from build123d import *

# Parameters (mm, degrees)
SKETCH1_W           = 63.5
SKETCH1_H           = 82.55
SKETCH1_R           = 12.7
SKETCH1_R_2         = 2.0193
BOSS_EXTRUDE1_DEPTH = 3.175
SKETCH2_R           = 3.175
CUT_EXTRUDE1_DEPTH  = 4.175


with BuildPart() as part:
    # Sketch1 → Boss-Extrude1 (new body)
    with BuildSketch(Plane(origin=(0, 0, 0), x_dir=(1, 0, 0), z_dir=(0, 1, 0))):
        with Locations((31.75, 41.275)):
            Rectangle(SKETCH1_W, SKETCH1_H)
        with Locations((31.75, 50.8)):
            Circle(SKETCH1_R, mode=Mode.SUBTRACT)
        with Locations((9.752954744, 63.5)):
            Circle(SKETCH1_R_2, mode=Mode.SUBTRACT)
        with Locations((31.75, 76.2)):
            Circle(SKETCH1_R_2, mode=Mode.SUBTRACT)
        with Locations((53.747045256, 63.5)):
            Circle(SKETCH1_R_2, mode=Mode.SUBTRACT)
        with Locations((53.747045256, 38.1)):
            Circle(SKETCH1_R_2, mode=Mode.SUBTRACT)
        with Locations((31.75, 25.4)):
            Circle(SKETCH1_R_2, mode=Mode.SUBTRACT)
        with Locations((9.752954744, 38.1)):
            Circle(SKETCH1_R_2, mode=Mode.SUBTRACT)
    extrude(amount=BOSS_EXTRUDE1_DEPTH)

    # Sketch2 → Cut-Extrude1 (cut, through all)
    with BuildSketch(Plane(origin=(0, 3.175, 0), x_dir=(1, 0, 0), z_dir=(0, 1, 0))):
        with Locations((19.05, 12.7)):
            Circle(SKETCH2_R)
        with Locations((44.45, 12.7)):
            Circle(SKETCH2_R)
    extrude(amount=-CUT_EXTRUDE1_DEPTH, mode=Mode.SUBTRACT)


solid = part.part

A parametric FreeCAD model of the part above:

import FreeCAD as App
import Part
import Sketcher

V = App.Vector
Q = App.Units.Quantity

doc = App.newDocument("Part")
body = doc.addObject("PartDesign::Body", "Body")

# Sketch on XZ plane
sketch1 = doc.addObject("Sketcher::SketchObject", "Sketch")
body.addObject(sketch1)
sketch1.AttachmentSupport = (doc.XZ_Plane, [""])
sketch1.MapMode = "FlatFace"
sketch1.addGeometry(Part.LineSegment(V(0, -82.55, 0), V(0, 0, 0)), False)
sketch1.addGeometry(Part.LineSegment(V(0, 0, 0), V(63.5, 0, 0)), False)
sketch1.addGeometry(Part.LineSegment(V(63.5, 0, 0), V(63.5, -82.55, 0)), False)
sketch1.addGeometry(Part.LineSegment(V(63.5, -82.55, 0), V(0, -82.55, 0)), False)
sketch1.addGeometry(Part.Circle(V(9.752955, -38.1, 0), V(0, 0, 1), 2.0193), False)
sketch1.addGeometry(Part.Circle(V(31.75, -25.4, 0), V(0, 0, 1), 2.0193), False)
sketch1.addGeometry(Part.Circle(V(31.75, -50.8, 0), V(0, 0, 1), 12.7), False)
sketch1.addGeometry(Part.Circle(V(53.747045, -38.1, 0), V(0, 0, 1), 2.0193), False)
sketch1.addGeometry(Part.Circle(V(9.752955, -63.5, 0), V(0, 0, 1), 2.0193), False)
sketch1.addGeometry(Part.Circle(V(53.747045, -63.5, 0), V(0, 0, 1), 2.0193), False)
sketch1.addGeometry(Part.Circle(V(31.75, -76.2, 0), V(0, 0, 1), 2.0193), False)
sketch1.addConstraint(Sketcher.Constraint("Coincident", 0, 2, 1, 1))
sketch1.addConstraint(Sketcher.Constraint("Coincident", 1, 2, 2, 1))
sketch1.addConstraint(Sketcher.Constraint("Coincident", 2, 2, 3, 1))
sketch1.addConstraint(Sketcher.Constraint("Coincident", 3, 2, 0, 1))
sketch1.addConstraint(Sketcher.Constraint("Vertical", 0))
sketch1.addConstraint(Sketcher.Constraint("Horizontal", 1))
sketch1.addConstraint(Sketcher.Constraint("Vertical", 2))
sketch1.addConstraint(Sketcher.Constraint("Horizontal", 3))
sketch1.addConstraint(Sketcher.Constraint("Coincident", 0, 2, -1, 1))
sketch1.addConstraint(Sketcher.Constraint("Equal", 4, 5))
sketch1.addConstraint(Sketcher.Constraint("Equal", 5, 7))
sketch1.addConstraint(Sketcher.Constraint("Equal", 7, 8))
sketch1.addConstraint(Sketcher.Constraint("Equal", 8, 9))
sketch1.addConstraint(Sketcher.Constraint("Equal", 9, 10))
sketch1.addConstraint(Sketcher.Constraint("Horizontal", 4, 3, 7, 3))
sketch1.addConstraint(Sketcher.Constraint("Horizontal", 8, 3, 9, 3))
sketch1.addConstraint(Sketcher.Constraint("Vertical", 5, 3, 6, 3))
sketch1.addConstraint(Sketcher.Constraint("Vertical", 4, 3, 8, 3))
sketch1.addConstraint(Sketcher.Constraint("Vertical", 7, 3, 9, 3))
sketch1.addConstraint(Sketcher.Constraint("Vertical", 6, 3, 10, 3))
sketch1.addConstraint(Sketcher.Constraint("Diameter", 6, Q("1 in")))
sketch1.addConstraint(Sketcher.Constraint("Diameter", 4, Q("0.159 in")))
sketch1.addConstraint(Sketcher.Constraint("DistanceX", 1, 1, 1, 2, Q("2.5 in")))
sketch1.addConstraint(Sketcher.Constraint("DistanceY", 5, 3, -1, 1, Q("1 in")))
sketch1.addConstraint(Sketcher.Constraint("DistanceY", 6, 3, -1, 1, Q("2 in")))
sketch1.addConstraint(Sketcher.Constraint("DistanceY", 10, 3, -1, 1, Q("3 in")))
sketch1.addConstraint(Sketcher.Constraint("DistanceY", 8, 3, 4, 3, Q("1 in")))
sketch1.addConstraint(Sketcher.Constraint("DistanceY", 0, 1, 0, 2, Q("3.25 in")))
sketch1.addConstraint(Sketcher.Constraint("DistanceY", 4, 3, -1, 1, Q("1.5 in")))
sketch1.addConstraint(Sketcher.Constraint("DistanceX", -1, 1, 5, 3, Q("1.25 in")))
sketch1.addConstraint(Sketcher.Constraint("DistanceX", 4, 3, 7, 3, Q("43.994091 mm")))
sketch1.addConstraint(Sketcher.Constraint("DistanceX", -1, 1, 4, 3, Q("9.752955 mm")))
pad1 = doc.addObject("PartDesign::Pad", "Pad")
body.addObject(pad1)
pad1.Profile = sketch1
pad1.Length = Q("0.125 in")
pad1.Reversed = True

# Sketch on XZ plane
sketch2 = doc.addObject("Sketcher::SketchObject", "Sketch001")
body.addObject(sketch2)
sketch2.AttachmentSupport = (doc.XZ_Plane, [""])
sketch2.MapMode = "FlatFace"
sketch2.AttachmentOffset = App.Placement(V(0, 0, -0.125 * 25.4), App.Rotation())
sketch2.addGeometry(Part.Circle(V(19.05, -12.7, 0), V(0, 0, 1), 3.175), False)
sketch2.addGeometry(Part.Circle(V(44.45, -12.7, 0), V(0, 0, 1), 3.175), False)
sketch2.addConstraint(Sketcher.Constraint("Equal", 0, 1))
sketch2.addConstraint(Sketcher.Constraint("Horizontal", 0, 3, 1, 3))
sketch2.addConstraint(Sketcher.Constraint("Diameter", 0, Q("0.25 in")))
sketch2.addConstraint(Sketcher.Constraint("DistanceX", 0, 3, 1, 3, Q("1 in")))
sketch2.addConstraint(Sketcher.Constraint("DistanceY", 0, 3, -1, 1, Q("0.5 in")))
sketch2.addConstraint(Sketcher.Constraint("DistanceX", -1, 1, 0, 3, Q("0.75 in")))
pocket1 = doc.addObject("PartDesign::Pocket", "Pocket")
body.addObject(pocket1)
pocket1.Profile = sketch2
pocket1.Type = "ThroughAll"
pocket1.Reversed = True

doc.recompute()
